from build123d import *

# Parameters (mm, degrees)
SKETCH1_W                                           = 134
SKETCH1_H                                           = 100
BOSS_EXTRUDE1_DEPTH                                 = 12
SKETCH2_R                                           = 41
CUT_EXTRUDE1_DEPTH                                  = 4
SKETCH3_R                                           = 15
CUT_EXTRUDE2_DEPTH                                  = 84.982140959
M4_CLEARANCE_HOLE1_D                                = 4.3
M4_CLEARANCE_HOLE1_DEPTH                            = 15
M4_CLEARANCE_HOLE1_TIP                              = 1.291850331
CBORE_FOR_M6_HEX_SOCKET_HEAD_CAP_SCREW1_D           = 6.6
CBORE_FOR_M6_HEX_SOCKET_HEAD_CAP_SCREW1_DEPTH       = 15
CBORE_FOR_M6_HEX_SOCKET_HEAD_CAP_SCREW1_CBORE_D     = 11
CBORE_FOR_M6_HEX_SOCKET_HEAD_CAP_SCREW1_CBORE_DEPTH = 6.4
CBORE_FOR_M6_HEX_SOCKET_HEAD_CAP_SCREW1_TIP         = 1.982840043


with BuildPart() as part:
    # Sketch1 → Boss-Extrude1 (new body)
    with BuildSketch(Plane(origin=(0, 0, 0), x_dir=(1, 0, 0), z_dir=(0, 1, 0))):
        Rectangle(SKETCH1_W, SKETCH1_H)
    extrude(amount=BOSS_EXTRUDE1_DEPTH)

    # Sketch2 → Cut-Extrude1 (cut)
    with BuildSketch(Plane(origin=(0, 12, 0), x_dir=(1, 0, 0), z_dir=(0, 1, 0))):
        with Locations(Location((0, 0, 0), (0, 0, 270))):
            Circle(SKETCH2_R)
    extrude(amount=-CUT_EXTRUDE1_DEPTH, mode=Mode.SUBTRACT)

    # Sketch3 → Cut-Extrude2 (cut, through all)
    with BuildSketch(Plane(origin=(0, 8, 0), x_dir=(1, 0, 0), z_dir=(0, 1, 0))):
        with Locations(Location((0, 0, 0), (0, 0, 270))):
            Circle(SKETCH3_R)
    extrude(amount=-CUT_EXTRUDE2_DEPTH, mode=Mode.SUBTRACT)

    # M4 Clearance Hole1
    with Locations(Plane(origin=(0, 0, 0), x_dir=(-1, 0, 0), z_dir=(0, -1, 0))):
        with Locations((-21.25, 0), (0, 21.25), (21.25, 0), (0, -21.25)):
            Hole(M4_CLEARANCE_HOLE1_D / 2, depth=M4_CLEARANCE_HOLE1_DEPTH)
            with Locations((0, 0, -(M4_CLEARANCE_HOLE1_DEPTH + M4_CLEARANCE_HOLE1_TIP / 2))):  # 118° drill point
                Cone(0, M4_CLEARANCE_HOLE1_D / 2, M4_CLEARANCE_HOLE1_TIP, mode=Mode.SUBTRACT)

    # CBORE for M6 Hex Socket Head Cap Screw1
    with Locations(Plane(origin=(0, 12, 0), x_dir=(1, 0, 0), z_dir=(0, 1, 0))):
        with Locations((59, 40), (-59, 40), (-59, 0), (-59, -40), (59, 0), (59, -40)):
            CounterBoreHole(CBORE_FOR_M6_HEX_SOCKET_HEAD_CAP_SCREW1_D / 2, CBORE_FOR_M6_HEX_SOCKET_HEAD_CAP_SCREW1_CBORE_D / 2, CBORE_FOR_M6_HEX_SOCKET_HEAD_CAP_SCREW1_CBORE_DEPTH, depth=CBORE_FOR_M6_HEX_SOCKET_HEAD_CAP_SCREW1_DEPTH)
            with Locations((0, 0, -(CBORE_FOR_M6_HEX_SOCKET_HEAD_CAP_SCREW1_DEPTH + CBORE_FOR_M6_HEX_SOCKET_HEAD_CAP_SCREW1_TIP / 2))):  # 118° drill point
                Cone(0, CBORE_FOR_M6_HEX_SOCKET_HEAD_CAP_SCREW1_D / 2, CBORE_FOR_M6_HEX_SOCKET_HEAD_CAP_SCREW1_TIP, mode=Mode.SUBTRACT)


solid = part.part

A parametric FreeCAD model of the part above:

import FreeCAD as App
import Part
import Sketcher

V = App.Vector

doc = App.newDocument("Part")
body = doc.addObject("PartDesign::Body", "Body")

# Sketch on XZ plane
sketch1 = body.newObject("Sketcher::SketchObject", "Sketch")
sketch1.AttachmentSupport = (doc.getObject("XZ_Plane"), [""])
sketch1.MapMode = "FlatFace"
sketch1.addGeometry(Part.LineSegment(V(-67, -50, 0), V(-67, 50, 0)), False)
sketch1.addGeometry(Part.LineSegment(V(-67, 50, 0), V(67, 50, 0)), False)
sketch1.addGeometry(Part.LineSegment(V(67, 50, 0), V(67, -50, 0)), False)
sketch1.addGeometry(Part.LineSegment(V(67, -50, 0), V(-67, -50, 0)), False)
sketch1.addConstraint(Sketcher.Constraint("Coincident", 0, 2, 1, 1))
sketch1.addConstraint(Sketcher.Constraint("Coincident", 1, 2, 2, 1))
sketch1.addConstraint(Sketcher.Constraint("Coincident", 2, 2, 3, 1))
sketch1.addConstraint(Sketcher.Constraint("Coincident", 3, 2, 0, 1))
sketch1.addConstraint(Sketcher.Constraint("Vertical", 0))
sketch1.addConstraint(Sketcher.Constraint("Horizontal", 1))
sketch1.addConstraint(Sketcher.Constraint("Vertical", 2))
sketch1.addConstraint(Sketcher.Constraint("Horizontal", 3))
sketch1.addConstraint(Sketcher.Constraint("Symmetric", 0, 2, 2, 2, -1, 1))
sketch1.addConstraint(Sketcher.Constraint("DistanceX", 1, 1, 1, 2, 134.0))
sketch1.addConstraint(Sketcher.Constraint("DistanceY", 0, 1, 0, 2, 100.0))
pad1 = body.newObject("PartDesign::Pad", "Pad")
pad1.Profile = sketch1
pad1.Length = 12
pad1.Reversed = True

# Sketch on XZ plane
sketch2 = body.newObject("Sketcher::SketchObject", "Sketch001")
sketch2.AttachmentSupport = (doc.getObject("XZ_Plane"), [""])
sketch2.MapMode = "FlatFace"
sketch2.AttachmentOffset = App.Placement(V(0, 0, -12), App.Rotation())
sketch2.addGeometry(Part.Circle(V(0, 0, 0), V(0, 0, 1), 41), False)
sketch2.addConstraint(Sketcher.Constraint("Coincident", 0, 3, -1, 1))
sketch2.addConstraint(Sketcher.Constraint("Diameter", 0, 82.0))
pocket1 = body.newObject("PartDesign::Pocket", "Pocket")
pocket1.Profile = sketch2
pocket1.Length = 4
pocket1.Reversed = True

# Sketch on XZ plane
sketch3 = body.newObject("Sketcher::SketchObject", "Sketch002")
sketch3.AttachmentSupport = (doc.getObject("XZ_Plane"), [""])
sketch3.MapMode = "FlatFace"
sketch3.AttachmentOffset = App.Placement(V(0, 0, -8), App.Rotation())
sketch3.addGeometry(Part.Circle(V(0, 0, 0), V(0, 0, 1), 15), False)
sketch3.addConstraint(Sketcher.Constraint("Coincident", 0, 3, -1, 1))
sketch3.addConstraint(Sketcher.Constraint("Diameter", 0, 30.0))
pocket2 = body.newObject("PartDesign::Pocket", "Pocket001")
pocket2.Profile = sketch3
pocket2.Type = "ThroughAll"
pocket2.Reversed = True

# Sketch on XZ plane
sketch4 = body.newObject("Sketcher::SketchObject", "Sketch003")
sketch4.AttachmentSupport = (doc.getObject("XZ_Plane"), [""])
sketch4.MapMode = "FlatFace"
sketch4.addGeometry(Part.Circle(V(21.25, 0, 0), V(0, 0, 1), 2.15), False)
sketch4.addGeometry(Part.Circle(V(0, -21.25, 0), V(0, 0, 1), 2.15), False)
sketch4.addGeometry(Part.Circle(V(-21.25, 0, 0), V(0, 0, 1), 2.15), False)
sketch4.addGeometry(Part.Circle(V(0, 21.25, 0), V(0, 0, 1), 2.15), False)
sketch4.addConstraint(Sketcher.Constraint("Equal", 0, 1))
sketch4.addConstraint(Sketcher.Constraint("Equal", 1, 2))
sketch4.addConstraint(Sketcher.Constraint("Equal", 2, 3))
sketch4.addConstraint(Sketcher.Constraint("Symmetric", 0, 3, 2, 3, -1, 1))
sketch4.addConstraint(Sketcher.Constraint("Symmetric", 1, 3, 3, 3, -1, 1))
sketch4.addConstraint(Sketcher.Constraint("PointOnObject", 0, 3, -1))
sketch4.addConstraint(Sketcher.Constraint("PointOnObject", 1, 3, -2))
sketch4.addConstraint(Sketcher.Constraint("Diameter", 0, 4.3))
sketch4.addConstraint(Sketcher.Constraint("DistanceX", 2, 3, 0, 3, 42.5))
sketch4.addConstraint(Sketcher.Constraint("DistanceY", 1, 3, 3, 3, 42.5))
doc.recompute()
hole = body.newObject("PartDesign::Hole", "Hole")
hole.Profile = sketch4
hole.ThreadType = "None"
hole.Diameter = 4.3
hole.DepthType = "Dimension"
hole.Depth = 15
hole.DrillPoint = "Angled"
hole.DrillPointAngle = 118

# Sketch on XZ plane
sketch5 = body.newObject("Sketcher::SketchObject", "Sketch004")
sketch5.AttachmentSupport = (doc.getObject("XZ_Plane"), [""])
sketch5.MapMode = "FlatFace"
sketch5.AttachmentOffset = App.Placement(V(0, 0, -12), App.Rotation())
sketch5.addGeometry(Part.Circle(V(59, -40, 0), V(0, 0, 1), 3.3), False)
sketch5.addGeometry(Part.Circle(V(-59, -40, 0), V(0, 0, 1), 3.3), False)
sketch5.addGeometry(Part.Circle(V(-59, 0, 0), V(0, 0, 1), 3.3), False)
sketch5.addGeometry(Part.Circle(V(-59, 40, 0), V(0, 0, 1), 3.3), False)
sketch5.addGeometry(Part.Circle(V(59, 0, 0), V(0, 0, 1), 3.3), False)
sketch5.addGeometry(Part.Circle(V(59, 40, 0), V(0, 0, 1), 3.3), False)
sketch5.addConstraint(Sketcher.Constraint("Equal", 0, 1))
sketch5.addConstraint(Sketcher.Constraint("Equal", 1, 2))
sketch5.addConstraint(Sketcher.Constraint("Equal", 2, 3))
sketch5.addConstraint(Sketcher.Constraint("Equal", 3, 4))
sketch5.addConstraint(Sketcher.Constraint("Equal", 4, 5))
sketch5.addConstraint(Sketcher.Constraint("Symmetric", 0, 3, 3, 3, -1, 1))
sketch5.addConstraint(Sketcher.Constraint("Symmetric", 2, 3, 4, 3, -1, 1))
sketch5.addConstraint(Sketcher.Constraint("Symmetric", 1, 3, 5, 3, -1, 1))
sketch5.addConstraint(Sketcher.Constraint("Symmetric", 0, 3, 1, 3, -2))
sketch5.addConstraint(Sketcher.Constraint("PointOnObject", 2, 3, -1))
sketch5.addConstraint(Sketcher.Constraint("Vertical", 1, 3, 2, 3))
sketch5.addConstraint(Sketcher.Constraint("Diameter", 0, 6.6))
sketch5.addConstraint(Sketcher.Constraint("DistanceX", -1, 1, 0, 3, 59.0))
sketch5.addConstraint(Sketcher.Constraint("DistanceY", 0, 3, -1, 1, 40.0))
doc.recompute()
hole2 = body.newObject("PartDesign::Hole", "Hole001")
hole2.Profile = sketch5
hole2.ThreadType = "None"
hole2.Diameter = 6.6
hole2.DepthType = "Dimension"
hole2.Depth = 15
hole2.DrillPoint = "Angled"
hole2.DrillPointAngle = 118
hole2.HoleCutType = "Counterbore"
hole2.HoleCutDiameter = 11
hole2.HoleCutDepth = 6.4
hole2.Reversed = True

doc.recompute()
